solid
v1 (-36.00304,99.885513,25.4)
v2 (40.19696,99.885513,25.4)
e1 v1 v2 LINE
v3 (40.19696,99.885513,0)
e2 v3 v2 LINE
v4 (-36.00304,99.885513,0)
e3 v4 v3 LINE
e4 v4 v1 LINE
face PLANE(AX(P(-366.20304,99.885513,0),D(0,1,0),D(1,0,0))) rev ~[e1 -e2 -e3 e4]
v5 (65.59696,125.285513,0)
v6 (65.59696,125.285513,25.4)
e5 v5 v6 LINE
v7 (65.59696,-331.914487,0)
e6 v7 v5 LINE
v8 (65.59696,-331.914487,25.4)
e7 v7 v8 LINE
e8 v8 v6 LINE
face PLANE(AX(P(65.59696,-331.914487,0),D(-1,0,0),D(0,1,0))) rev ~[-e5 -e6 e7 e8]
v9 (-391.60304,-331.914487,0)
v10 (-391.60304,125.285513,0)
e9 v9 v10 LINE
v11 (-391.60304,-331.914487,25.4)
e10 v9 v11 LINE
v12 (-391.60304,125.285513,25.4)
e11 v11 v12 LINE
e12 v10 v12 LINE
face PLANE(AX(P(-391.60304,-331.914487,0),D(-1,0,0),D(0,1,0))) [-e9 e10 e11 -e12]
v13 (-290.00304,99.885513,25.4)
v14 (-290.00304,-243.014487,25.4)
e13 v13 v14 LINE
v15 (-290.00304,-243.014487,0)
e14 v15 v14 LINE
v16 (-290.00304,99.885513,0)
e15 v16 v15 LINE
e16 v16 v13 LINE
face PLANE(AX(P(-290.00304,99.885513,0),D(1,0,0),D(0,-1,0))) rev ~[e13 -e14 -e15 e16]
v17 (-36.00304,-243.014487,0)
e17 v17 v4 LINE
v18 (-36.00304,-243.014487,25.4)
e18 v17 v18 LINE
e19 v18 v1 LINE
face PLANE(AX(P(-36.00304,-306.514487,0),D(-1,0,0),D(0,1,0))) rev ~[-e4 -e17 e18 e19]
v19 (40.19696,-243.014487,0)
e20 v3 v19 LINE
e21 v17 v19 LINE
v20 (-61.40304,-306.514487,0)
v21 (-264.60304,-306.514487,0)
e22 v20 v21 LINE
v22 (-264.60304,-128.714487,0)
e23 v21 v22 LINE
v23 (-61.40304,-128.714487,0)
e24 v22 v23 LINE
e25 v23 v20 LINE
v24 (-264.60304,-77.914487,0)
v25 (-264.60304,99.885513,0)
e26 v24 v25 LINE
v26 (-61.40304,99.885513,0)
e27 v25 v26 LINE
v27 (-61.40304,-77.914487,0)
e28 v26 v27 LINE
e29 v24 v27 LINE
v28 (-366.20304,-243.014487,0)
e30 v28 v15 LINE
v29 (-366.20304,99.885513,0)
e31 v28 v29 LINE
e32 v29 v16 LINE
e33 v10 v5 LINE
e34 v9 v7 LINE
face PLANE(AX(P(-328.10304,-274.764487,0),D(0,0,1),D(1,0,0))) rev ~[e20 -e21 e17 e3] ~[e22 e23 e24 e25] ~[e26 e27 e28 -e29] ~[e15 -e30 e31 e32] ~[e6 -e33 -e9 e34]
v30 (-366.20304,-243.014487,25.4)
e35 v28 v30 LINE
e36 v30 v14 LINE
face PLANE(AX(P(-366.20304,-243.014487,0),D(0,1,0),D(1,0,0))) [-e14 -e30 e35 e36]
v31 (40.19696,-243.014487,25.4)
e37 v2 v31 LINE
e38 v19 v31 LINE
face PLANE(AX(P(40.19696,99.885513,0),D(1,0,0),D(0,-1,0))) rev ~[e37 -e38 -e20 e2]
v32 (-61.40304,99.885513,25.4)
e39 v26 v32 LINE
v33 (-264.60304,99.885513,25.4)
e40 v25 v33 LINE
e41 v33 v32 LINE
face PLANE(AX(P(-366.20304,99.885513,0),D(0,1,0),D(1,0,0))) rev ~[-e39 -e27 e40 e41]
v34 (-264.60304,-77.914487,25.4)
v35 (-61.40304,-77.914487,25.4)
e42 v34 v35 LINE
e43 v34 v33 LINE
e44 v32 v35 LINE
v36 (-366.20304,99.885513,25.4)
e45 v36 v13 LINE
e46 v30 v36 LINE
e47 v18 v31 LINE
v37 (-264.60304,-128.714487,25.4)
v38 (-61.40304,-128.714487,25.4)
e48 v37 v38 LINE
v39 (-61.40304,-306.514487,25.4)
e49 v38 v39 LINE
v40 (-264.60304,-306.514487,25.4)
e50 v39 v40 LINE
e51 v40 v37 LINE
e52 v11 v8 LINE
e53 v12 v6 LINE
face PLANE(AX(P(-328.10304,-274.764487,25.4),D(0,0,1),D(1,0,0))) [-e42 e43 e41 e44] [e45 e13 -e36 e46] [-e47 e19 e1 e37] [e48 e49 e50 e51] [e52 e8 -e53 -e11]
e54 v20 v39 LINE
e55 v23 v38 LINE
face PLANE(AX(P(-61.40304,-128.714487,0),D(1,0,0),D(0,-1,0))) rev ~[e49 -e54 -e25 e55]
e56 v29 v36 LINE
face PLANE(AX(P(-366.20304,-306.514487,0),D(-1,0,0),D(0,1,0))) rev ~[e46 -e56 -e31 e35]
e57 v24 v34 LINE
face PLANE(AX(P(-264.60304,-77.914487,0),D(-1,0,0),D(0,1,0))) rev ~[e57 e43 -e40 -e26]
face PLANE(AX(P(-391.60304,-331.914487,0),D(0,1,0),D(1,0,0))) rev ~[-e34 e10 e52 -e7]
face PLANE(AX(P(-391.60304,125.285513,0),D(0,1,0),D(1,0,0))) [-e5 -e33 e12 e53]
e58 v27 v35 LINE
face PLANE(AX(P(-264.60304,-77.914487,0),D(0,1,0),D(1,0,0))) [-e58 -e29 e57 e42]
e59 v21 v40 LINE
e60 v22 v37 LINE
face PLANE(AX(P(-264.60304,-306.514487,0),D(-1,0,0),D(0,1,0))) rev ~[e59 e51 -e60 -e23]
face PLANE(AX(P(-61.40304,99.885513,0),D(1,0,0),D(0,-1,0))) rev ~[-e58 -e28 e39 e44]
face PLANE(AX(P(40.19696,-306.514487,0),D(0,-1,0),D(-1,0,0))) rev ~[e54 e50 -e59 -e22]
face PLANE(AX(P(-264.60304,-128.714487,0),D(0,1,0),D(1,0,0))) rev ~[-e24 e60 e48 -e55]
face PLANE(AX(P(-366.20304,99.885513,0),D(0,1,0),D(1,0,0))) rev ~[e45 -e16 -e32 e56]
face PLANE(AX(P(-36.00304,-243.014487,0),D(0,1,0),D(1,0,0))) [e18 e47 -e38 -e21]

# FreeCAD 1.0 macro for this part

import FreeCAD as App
import Part
import Sketcher
Q = App.Units.Quantity

doc = App.newDocument("Part")
body = doc.addObject("PartDesign::Body", "Body")

sketch1 = body.newObject("Sketcher::SketchObject", "Sketch")
sketch1.AttachmentSupport = (doc.getObject("XY_Plane"), [""])
sketch1.MapMode = "FlatFace"
sketch1.addGeometry(Part.LineSegment(App.Vector(-392, 125, 0), App.Vector(-392, -332, 0)), False)
sketch1.addGeometry(Part.LineSegment(App.Vector(-392, -332, 0), App.Vector(66, -332, 0)), False)
sketch1.addGeometry(Part.LineSegment(App.Vector(66, -332, 0), App.Vector(66, 125, 0)), False)
sketch1.addGeometry(Part.LineSegment(App.Vector(66, 125, 0), App.Vector(-392, 125, 0)), False)
sketch1.addGeometry(Part.LineSegment(App.Vector(-366, 100, 0), App.Vector(40, 100, 0)), False)
sketch1.addGeometry(Part.LineSegment(App.Vector(40, 100, 0), App.Vector(40, -307, 0)), False)
sketch1.addGeometry(Part.LineSegment(App.Vector(40, -307, 0), App.Vector(-366, -307, 0)), False)
sketch1.addGeometry(Part.LineSegment(App.Vector(-366, -307, 0), App.Vector(-366, 100, 0)), False)
sketch1.addConstraint(Sketcher.Constraint("Coincident", 0, 2, 1, 1))
sketch1.addConstraint(Sketcher.Constraint("Coincident", 1, 2, 2, 1))
sketch1.addConstraint(Sketcher.Constraint("Coincident", 2, 2, 3, 1))
sketch1.addConstraint(Sketcher.Constraint("Coincident", 3, 2, 0, 1))
sketch1.addConstraint(Sketcher.Constraint("Coincident", 4, 2, 5, 1))
sketch1.addConstraint(Sketcher.Constraint("Coincident", 5, 2, 6, 1))
sketch1.addConstraint(Sketcher.Constraint("Coincident", 6, 2, 7, 1))
sketch1.addConstraint(Sketcher.Constraint("Coincident", 7, 2, 4, 1))
sketch1.addConstraint(Sketcher.Constraint("Vertical", 0))
sketch1.addConstraint(Sketcher.Constraint("Horizontal", 1))
sketch1.addConstraint(Sketcher.Constraint("Vertical", 2))
sketch1.addConstraint(Sketcher.Constraint("Horizontal", 3))
sketch1.addConstraint(Sketcher.Constraint("Horizontal", 4))
sketch1.addConstraint(Sketcher.Constraint("Vertical", 5))
sketch1.addConstraint(Sketcher.Constraint("Horizontal", 6))
sketch1.addConstraint(Sketcher.Constraint("Vertical", 7))
sketch1.addConstraint(Sketcher.Constraint("Equal", 3, 0))
sketch1.addConstraint(Sketcher.Constraint("Equal", 6, 5))
sketch1.addConstraint(Sketcher.Constraint("DistanceX", 1, 1, 1, 2, Q("18 in")))
sketch1.addConstraint(Sketcher.Constraint("DistanceX", 4, 1, 4, 2, Q("16 in")))
sketch1.addConstraint(Sketcher.Constraint("DistanceX", 4, 2, 2, 2, Q("1 in")))
sketch1.addConstraint(Sketcher.Constraint("DistanceY", 4, 2, 2, 2, Q("1 in")))
sketch1.addConstraint(Sketcher.Constraint("DistanceX", 0, 2, -1, 1, 391.60304))
sketch1.addConstraint(Sketcher.Constraint("DistanceY", 0, 2, -1, 1, 331.914487))
pad1 = body.newObject("PartDesign::Pad", "Pad")
pad1.Profile = sketch1
pad1.Length = Q("1 in")

sketch2 = body.newObject("Sketcher::SketchObject", "Sketch001")
sketch2.AttachmentSupport = (doc.getObject("XY_Plane"), [""])
sketch2.MapMode = "FlatFace"
sketch2.addGeometry(Part.LineSegment(App.Vector(-265, 100, 0), App.Vector(-290, 100, 0)), False)
sketch2.addGeometry(Part.LineSegment(App.Vector(-290, 100, 0), App.Vector(-290, -307, 0)), False)
sketch2.addGeometry(Part.LineSegment(App.Vector(-290, -307, 0), App.Vector(-265, -307, 0)), False)
sketch2.addGeometry(Part.LineSegment(App.Vector(-265, -307, 0), App.Vector(-265, -129, 0)), False)
sketch2.addGeometry(Part.LineSegment(App.Vector(-265, -129, 0), App.Vector(-61, -129, 0)), False)
sketch2.addGeometry(Part.LineSegment(App.Vector(-61, -129, 0), App.Vector(-61, -307, 0)), False)
sketch2.addGeometry(Part.LineSegment(App.Vector(-61, -307, 0), App.Vector(-36, -307, 0)), False)
sketch2.addGeometry(Part.LineSegment(App.Vector(-36, -307, 0), App.Vector(-36, 100, 0)), False)
sketch2.addGeometry(Part.LineSegment(App.Vector(-36, 100, 0), App.Vector(-61, 100, 0)), False)
sketch2.addGeometry(Part.LineSegment(App.Vector(-61, 100, 0), App.Vector(-61, -78, 0)), False)
sketch2.addGeometry(Part.LineSegment(App.Vector(-61, -78, 0), App.Vector(-265, -78, 0)), False)
sketch2.addGeometry(Part.LineSegment(App.Vector(-265, -78, 0), App.Vector(-265, 100, 0)), False)
sketch2.addConstraint(Sketcher.Constraint("Coincident", 0, 2, 1, 1))
sketch2.addConstraint(Sketcher.Constraint("Coincident", 1, 2, 2, 1))
sketch2.addConstraint(Sketcher.Constraint("Coincident", 2, 2, 3, 1))
sketch2.addConstraint(Sketcher.Constraint("Coincident", 3, 2, 4, 1))
sketch2.addConstraint(Sketcher.Constraint("Coincident", 4, 2, 5, 1))
sketch2.addConstraint(Sketcher.Constraint("Coincident", 5, 2, 6, 1))
sketch2.addConstraint(Sketcher.Constraint("Coincident", 6, 2, 7, 1))
sketch2.addConstraint(Sketcher.Constraint("Coincident", 7, 2, 8, 1))
sketch2.addConstraint(Sketcher.Constraint("Coincident", 8, 2, 9, 1))
sketch2.addConstraint(Sketcher.Constraint("Coincident", 9, 2, 10, 1))
sketch2.addConstraint(Sketcher.Constraint("Coincident", 10, 2, 11, 1))
sketch2.addConstraint(Sketcher.Constraint("Coincident", 11, 2, 0, 1))
sketch2.addConstraint(Sketcher.Constraint("Horizontal", 0))
sketch2.addConstraint(Sketcher.Constraint("Vertical", 1))
sketch2.addConstraint(Sketcher.Constraint("Horizontal", 2))
sketch2.addConstraint(Sketcher.Constraint("Vertical", 3))
sketch2.addConstraint(Sketcher.Constraint("Horizontal", 4))
sketch2.addConstraint(Sketcher.Constraint("Vertical", 5))
sketch2.addConstraint(Sketcher.Constraint("Horizontal", 6))
sketch2.addConstraint(Sketcher.Constraint("Vertical", 7))
sketch2.addConstraint(Sketcher.Constraint("Horizontal", 8))
sketch2.addConstraint(Sketcher.Constraint("Vertical", 9))
sketch2.addConstraint(Sketcher.Constraint("Horizontal", 10))
sketch2.addConstraint(Sketcher.Constraint("Vertical", 11))
sketch2.addConstraint(Sketcher.Constraint("Horizontal", 2, 2, 5, 2))
sketch2.addConstraint(Sketcher.Constraint("Horizontal", 0, 2, 7, 2))
sketch2.addConstraint(Sketcher.Constraint("Vertical", 5, 2, 8, 2))
sketch2.addConstraint(Sketcher.Constraint("Vertical", 3, 2, 10, 2))
sketch2.addConstraint(Sketcher.Constraint("Equal", 2, 6))
sketch2.addConstraint(Sketcher.Constraint("Equal", 5, 9))
sketch2.addConstraint(Sketcher.Constraint("DistanceX", 0, 2, 0, 1, Q("1 in")))
sketch2.addConstraint(Sketcher.Constraint("DistanceX", 4, 1, 4, 2, Q("8 in")))
sketch2.addConstraint(Sketcher.Constraint("DistanceY", 1, 2, 1, 1, Q("16 in")))
sketch2.addConstraint(Sketcher.Constraint("DistanceY", 3, 1, 3, 2, Q("7 in")))
sketch2.addConstraint(Sketcher.Constraint("DistanceX", 0, 2, -1, 1, 290.00304))
sketch2.addConstraint(Sketcher.Constraint("DistanceY", -1, 1, 0, 2, 99.885513))
pad2 = body.newObject("PartDesign::Pad", "Pad001")
pad2.Profile = sketch2
pad2.Length = Q("1 in")

sketch3 = body.newObject("Sketcher::SketchObject", "Sketch002")
sketch3.AttachmentSupport = (doc.getObject("XY_Plane"), [""])
sketch3.MapMode = "FlatFace"
sketch3.addGeometry(Part.LineSegment(App.Vector(-366, -243, 0), App.Vector(-366, -307, 0)), False)
sketch3.addGeometry(Part.LineSegment(App.Vector(-366, -307, 0), App.Vector(-290, -307, 0)), False)
sketch3.addGeometry(Part.LineSegment(App.Vector(-290, -307, 0), App.Vector(-290, -243, 0)), False)
sketch3.addGeometry(Part.LineSegment(App.Vector(-290, -243, 0), App.Vector(-366, -243, 0)), False)
sketch3.addGeometry(Part.LineSegment(App.Vector(-36, -243, 0), App.Vector(-36, -307, 0)), False)
sketch3.addGeometry(Part.LineSegment(App.Vector(-36, -307, 0), App.Vector(40, -307, 0)), False)
sketch3.addGeometry(Part.LineSegment(App.Vector(40, -307, 0), App.Vector(40, -243, 0)), False)
sketch3.addGeometry(Part.LineSegment(App.Vector(40, -243, 0), App.Vector(-36, -243, 0)), False)
sketch3.addConstraint(Sketcher.Constraint("Coincident", 0, 2, 1, 1))
sketch3.addConstraint(Sketcher.Constraint("Coincident", 1, 2, 2, 1))
sketch3.addConstraint(Sketcher.Constraint("Coincident", 2, 2, 3, 1))
sketch3.addConstraint(Sketcher.Constraint("Coincident", 3, 2, 0, 1))
sketch3.addConstraint(Sketcher.Constraint("Coincident", 4, 2, 5, 1))
sketch3.addConstraint(Sketcher.Constraint("Coincident", 5, 2, 6, 1))
sketch3.addConstraint(Sketcher.Constraint("Coincident", 6, 2, 7, 1))
sketch3.addConstraint(Sketcher.Constraint("Coincident", 7, 2, 4, 1))
sketch3.addConstraint(Sketcher.Constraint("Vertical", 0))
sketch3.addConstraint(Sketcher.Constraint("Horizontal", 1))
sketch3.addConstraint(Sketcher.Constraint("Vertical", 2))
sketch3.addConstraint(Sketcher.Constraint("Horizontal", 3))
sketch3.addConstraint(Sketcher.Constraint("Vertical", 4))
sketch3.addConstraint(Sketcher.Constraint("Horizontal", 5))
sketch3.addConstraint(Sketcher.Constraint("Vertical", 6))
sketch3.addConstraint(Sketcher.Constraint("Horizontal", 7))
sketch3.addConstraint(Sketcher.Constraint("Horizontal", 1, 2, 4, 2))
sketch3.addConstraint(Sketcher.Constraint("Horizontal", 3, 2, 6, 2))
sketch3.addConstraint(Sketcher.Constraint("Equal", 3, 5))
sketch3.addConstraint(Sketcher.Constraint("DistanceX", 1, 1, 1, 2, Q("3 in")))
sketch3.addConstraint(Sketcher.Constraint("DistanceY", 0, 2, 0, 1, Q("2.5 in")))
sketch3.addConstraint(Sketcher.Constraint("DistanceX", 1, 2, 4, 2, Q("10 in")))
sketch3.addConstraint(Sketcher.Constraint("DistanceX", 0, 2, -1, 1, 366.20304))
sketch3.addConstraint(Sketcher.Constraint("DistanceY", 0, 2, -1, 1, 306.514487))
pad3 = body.newObject("PartDesign::Pad", "Pad002")
pad3.Profile = sketch3
pad3.Length = Q("1 in")

doc.recompute()
